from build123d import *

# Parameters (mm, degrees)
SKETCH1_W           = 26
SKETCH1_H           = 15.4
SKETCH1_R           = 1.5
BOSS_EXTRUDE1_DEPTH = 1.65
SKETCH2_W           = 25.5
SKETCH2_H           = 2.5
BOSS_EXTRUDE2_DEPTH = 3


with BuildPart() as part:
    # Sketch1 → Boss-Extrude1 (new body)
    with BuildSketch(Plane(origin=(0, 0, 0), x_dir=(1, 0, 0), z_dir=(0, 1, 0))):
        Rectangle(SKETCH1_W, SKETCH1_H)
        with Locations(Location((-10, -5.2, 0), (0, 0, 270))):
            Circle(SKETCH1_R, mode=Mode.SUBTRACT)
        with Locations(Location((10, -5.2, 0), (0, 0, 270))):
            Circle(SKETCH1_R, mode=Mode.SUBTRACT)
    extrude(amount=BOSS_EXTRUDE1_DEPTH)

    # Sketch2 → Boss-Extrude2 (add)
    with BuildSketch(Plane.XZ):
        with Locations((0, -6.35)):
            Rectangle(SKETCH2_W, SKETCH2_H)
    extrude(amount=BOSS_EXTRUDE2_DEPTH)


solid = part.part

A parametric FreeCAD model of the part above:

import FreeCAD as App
import Part
import Sketcher
from FreeCAD import Vector
Q = App.Units.Quantity

doc = App.newDocument("Part")
params = doc.addObject("Spreadsheet::Sheet", "Params")
for row, (alias, value) in enumerate([
    ("sketch1_diameter", "3 mm"),
    ("sketch1_width", "26 mm"),
    ("sketch1_height", "15.4 mm"),
    ("pad1_length", "1.65 mm"),
    ("sketch2_width", "25.5 mm"),
    ("sketch2_height", "2.5 mm"),
    ("pad2_length", "3 mm"),
], start=1):
    params.set(f"A{row}", alias)
    params.set(f"B{row}", "=" + value)
    params.setAlias(f"B{row}", alias)

body = doc.addObject("PartDesign::Body", "Body")

# Sketch on XZ plane
sketch1 = body.newObject("Sketcher::SketchObject", "Sketch")
sketch1.AttachmentSupport = (doc.getObject("XZ_Plane"), [""])
sketch1.MapMode = "FlatFace"
sketch1.addGeometry([
    Part.LineSegment(Vector(-13, -7.7, 0), Vector(-13, 7.7, 0)),  # 0
    Part.LineSegment(Vector(-13, 7.7, 0), Vector(13, 7.7, 0)),  # 1
    Part.LineSegment(Vector(13, 7.7, 0), Vector(13, -7.7, 0)),  # 2
    Part.LineSegment(Vector(13, -7.7, 0), Vector(-13, -7.7, 0)),  # 3
    Part.Circle(Vector(-10, 5.2, 0), Vector(0, 0, 1), 1.5),  # 4
    Part.Circle(Vector(10, 5.2, 0), Vector(0, 0, 1), 1.5),  # 5
], False)
sketch1.addConstraint([
    Sketcher.Constraint("Coincident", 0, 2, 1, 1),
    Sketcher.Constraint("Coincident", 1, 2, 2, 1),
    Sketcher.Constraint("Coincident", 2, 2, 3, 1),
    Sketcher.Constraint("Coincident", 3, 2, 0, 1),
    Sketcher.Constraint("Vertical", 0),
    Sketcher.Constraint("Horizontal", 1),
    Sketcher.Constraint("Vertical", 2),
    Sketcher.Constraint("Horizontal", 3),
    Sketcher.Constraint("Equal", 4, 5),
    Sketcher.Constraint("Symmetric", 0, 2, 2, 2, -1, 1),
    Sketcher.Constraint("Symmetric", 4, 3, 5, 3, -2),
    Sketcher.Constraint("Diameter", 4, Q("3 mm")),
    Sketcher.Constraint("DistanceX", 1, 1, 1, 2, Q("26 mm")),
    Sketcher.Constraint("DistanceY", 0, 1, 0, 2, Q("15.4 mm")),
    Sketcher.Constraint("DistanceX", 4, 3, -1, 1, Q("10 mm")),
    Sketcher.Constraint("DistanceY", -1, 1, 4, 3, Q("5.2 mm")),
])
sketch1.setExpression("Constraints[11]", "Params.sketch1_diameter")
sketch1.setExpression("Constraints[12]", "Params.sketch1_width")
sketch1.setExpression("Constraints[13]", "Params.sketch1_height")
pad1 = body.newObject("PartDesign::Pad", "Pad")
pad1.Profile = sketch1
pad1.setExpression("Length", "Params.pad1_length")
pad1.Reversed = True

# Sketch on XZ plane
sketch2 = body.newObject("Sketcher::SketchObject", "Sketch001")
sketch2.AttachmentSupport = (doc.getObject("XZ_Plane"), [""])
sketch2.MapMode = "FlatFace"
sketch2.addGeometry([
    Part.LineSegment(Vector(-12.75, -5.1, 0), Vector(-12.75, -7.6, 0)),
    Part.LineSegment(Vector(-12.75, -7.6, 0), Vector(12.75, -7.6, 0)),
    Part.LineSegment(Vector(12.75, -7.6, 0), Vector(12.75, -5.1, 0)),
    Part.LineSegment(Vector(12.75, -5.1, 0), Vector(-12.75, -5.1, 0)),
], False)
sketch2.addConstraint([
    Sketcher.Constraint("Coincident", 0, 2, 1, 1),
    Sketcher.Constraint("Coincident", 1, 2, 2, 1),
    Sketcher.Constraint("Coincident", 2, 2, 3, 1),
    Sketcher.Constraint("Coincident", 3, 2, 0, 1),
    Sketcher.Constraint("Vertical", 0),
    Sketcher.Constraint("Horizontal", 1),
    Sketcher.Constraint("Vertical", 2),
    Sketcher.Constraint("Horizontal", 3),
    Sketcher.Constraint("DistanceX", 1, 1, 1, 2, Q("25.5 mm")),
    Sketcher.Constraint("DistanceY", 0, 2, 0, 1, Q("2.5 mm")),
    Sketcher.Constraint("DistanceY", 0, 2, -1, 1, Q("7.6 mm")),
    Sketcher.Constraint("DistanceX", 0, 2, -1, 1, Q("12.75 mm")),
])
sketch2.setExpression("Constraints[8]", "Params.sketch2_width")
sketch2.setExpression("Constraints[9]", "Params.sketch2_height")
pad2 = body.newObject("PartDesign::Pad", "Pad001")
pad2.Profile = sketch2
pad2.setExpression("Length", "Params.pad2_length")

doc.recompute()
